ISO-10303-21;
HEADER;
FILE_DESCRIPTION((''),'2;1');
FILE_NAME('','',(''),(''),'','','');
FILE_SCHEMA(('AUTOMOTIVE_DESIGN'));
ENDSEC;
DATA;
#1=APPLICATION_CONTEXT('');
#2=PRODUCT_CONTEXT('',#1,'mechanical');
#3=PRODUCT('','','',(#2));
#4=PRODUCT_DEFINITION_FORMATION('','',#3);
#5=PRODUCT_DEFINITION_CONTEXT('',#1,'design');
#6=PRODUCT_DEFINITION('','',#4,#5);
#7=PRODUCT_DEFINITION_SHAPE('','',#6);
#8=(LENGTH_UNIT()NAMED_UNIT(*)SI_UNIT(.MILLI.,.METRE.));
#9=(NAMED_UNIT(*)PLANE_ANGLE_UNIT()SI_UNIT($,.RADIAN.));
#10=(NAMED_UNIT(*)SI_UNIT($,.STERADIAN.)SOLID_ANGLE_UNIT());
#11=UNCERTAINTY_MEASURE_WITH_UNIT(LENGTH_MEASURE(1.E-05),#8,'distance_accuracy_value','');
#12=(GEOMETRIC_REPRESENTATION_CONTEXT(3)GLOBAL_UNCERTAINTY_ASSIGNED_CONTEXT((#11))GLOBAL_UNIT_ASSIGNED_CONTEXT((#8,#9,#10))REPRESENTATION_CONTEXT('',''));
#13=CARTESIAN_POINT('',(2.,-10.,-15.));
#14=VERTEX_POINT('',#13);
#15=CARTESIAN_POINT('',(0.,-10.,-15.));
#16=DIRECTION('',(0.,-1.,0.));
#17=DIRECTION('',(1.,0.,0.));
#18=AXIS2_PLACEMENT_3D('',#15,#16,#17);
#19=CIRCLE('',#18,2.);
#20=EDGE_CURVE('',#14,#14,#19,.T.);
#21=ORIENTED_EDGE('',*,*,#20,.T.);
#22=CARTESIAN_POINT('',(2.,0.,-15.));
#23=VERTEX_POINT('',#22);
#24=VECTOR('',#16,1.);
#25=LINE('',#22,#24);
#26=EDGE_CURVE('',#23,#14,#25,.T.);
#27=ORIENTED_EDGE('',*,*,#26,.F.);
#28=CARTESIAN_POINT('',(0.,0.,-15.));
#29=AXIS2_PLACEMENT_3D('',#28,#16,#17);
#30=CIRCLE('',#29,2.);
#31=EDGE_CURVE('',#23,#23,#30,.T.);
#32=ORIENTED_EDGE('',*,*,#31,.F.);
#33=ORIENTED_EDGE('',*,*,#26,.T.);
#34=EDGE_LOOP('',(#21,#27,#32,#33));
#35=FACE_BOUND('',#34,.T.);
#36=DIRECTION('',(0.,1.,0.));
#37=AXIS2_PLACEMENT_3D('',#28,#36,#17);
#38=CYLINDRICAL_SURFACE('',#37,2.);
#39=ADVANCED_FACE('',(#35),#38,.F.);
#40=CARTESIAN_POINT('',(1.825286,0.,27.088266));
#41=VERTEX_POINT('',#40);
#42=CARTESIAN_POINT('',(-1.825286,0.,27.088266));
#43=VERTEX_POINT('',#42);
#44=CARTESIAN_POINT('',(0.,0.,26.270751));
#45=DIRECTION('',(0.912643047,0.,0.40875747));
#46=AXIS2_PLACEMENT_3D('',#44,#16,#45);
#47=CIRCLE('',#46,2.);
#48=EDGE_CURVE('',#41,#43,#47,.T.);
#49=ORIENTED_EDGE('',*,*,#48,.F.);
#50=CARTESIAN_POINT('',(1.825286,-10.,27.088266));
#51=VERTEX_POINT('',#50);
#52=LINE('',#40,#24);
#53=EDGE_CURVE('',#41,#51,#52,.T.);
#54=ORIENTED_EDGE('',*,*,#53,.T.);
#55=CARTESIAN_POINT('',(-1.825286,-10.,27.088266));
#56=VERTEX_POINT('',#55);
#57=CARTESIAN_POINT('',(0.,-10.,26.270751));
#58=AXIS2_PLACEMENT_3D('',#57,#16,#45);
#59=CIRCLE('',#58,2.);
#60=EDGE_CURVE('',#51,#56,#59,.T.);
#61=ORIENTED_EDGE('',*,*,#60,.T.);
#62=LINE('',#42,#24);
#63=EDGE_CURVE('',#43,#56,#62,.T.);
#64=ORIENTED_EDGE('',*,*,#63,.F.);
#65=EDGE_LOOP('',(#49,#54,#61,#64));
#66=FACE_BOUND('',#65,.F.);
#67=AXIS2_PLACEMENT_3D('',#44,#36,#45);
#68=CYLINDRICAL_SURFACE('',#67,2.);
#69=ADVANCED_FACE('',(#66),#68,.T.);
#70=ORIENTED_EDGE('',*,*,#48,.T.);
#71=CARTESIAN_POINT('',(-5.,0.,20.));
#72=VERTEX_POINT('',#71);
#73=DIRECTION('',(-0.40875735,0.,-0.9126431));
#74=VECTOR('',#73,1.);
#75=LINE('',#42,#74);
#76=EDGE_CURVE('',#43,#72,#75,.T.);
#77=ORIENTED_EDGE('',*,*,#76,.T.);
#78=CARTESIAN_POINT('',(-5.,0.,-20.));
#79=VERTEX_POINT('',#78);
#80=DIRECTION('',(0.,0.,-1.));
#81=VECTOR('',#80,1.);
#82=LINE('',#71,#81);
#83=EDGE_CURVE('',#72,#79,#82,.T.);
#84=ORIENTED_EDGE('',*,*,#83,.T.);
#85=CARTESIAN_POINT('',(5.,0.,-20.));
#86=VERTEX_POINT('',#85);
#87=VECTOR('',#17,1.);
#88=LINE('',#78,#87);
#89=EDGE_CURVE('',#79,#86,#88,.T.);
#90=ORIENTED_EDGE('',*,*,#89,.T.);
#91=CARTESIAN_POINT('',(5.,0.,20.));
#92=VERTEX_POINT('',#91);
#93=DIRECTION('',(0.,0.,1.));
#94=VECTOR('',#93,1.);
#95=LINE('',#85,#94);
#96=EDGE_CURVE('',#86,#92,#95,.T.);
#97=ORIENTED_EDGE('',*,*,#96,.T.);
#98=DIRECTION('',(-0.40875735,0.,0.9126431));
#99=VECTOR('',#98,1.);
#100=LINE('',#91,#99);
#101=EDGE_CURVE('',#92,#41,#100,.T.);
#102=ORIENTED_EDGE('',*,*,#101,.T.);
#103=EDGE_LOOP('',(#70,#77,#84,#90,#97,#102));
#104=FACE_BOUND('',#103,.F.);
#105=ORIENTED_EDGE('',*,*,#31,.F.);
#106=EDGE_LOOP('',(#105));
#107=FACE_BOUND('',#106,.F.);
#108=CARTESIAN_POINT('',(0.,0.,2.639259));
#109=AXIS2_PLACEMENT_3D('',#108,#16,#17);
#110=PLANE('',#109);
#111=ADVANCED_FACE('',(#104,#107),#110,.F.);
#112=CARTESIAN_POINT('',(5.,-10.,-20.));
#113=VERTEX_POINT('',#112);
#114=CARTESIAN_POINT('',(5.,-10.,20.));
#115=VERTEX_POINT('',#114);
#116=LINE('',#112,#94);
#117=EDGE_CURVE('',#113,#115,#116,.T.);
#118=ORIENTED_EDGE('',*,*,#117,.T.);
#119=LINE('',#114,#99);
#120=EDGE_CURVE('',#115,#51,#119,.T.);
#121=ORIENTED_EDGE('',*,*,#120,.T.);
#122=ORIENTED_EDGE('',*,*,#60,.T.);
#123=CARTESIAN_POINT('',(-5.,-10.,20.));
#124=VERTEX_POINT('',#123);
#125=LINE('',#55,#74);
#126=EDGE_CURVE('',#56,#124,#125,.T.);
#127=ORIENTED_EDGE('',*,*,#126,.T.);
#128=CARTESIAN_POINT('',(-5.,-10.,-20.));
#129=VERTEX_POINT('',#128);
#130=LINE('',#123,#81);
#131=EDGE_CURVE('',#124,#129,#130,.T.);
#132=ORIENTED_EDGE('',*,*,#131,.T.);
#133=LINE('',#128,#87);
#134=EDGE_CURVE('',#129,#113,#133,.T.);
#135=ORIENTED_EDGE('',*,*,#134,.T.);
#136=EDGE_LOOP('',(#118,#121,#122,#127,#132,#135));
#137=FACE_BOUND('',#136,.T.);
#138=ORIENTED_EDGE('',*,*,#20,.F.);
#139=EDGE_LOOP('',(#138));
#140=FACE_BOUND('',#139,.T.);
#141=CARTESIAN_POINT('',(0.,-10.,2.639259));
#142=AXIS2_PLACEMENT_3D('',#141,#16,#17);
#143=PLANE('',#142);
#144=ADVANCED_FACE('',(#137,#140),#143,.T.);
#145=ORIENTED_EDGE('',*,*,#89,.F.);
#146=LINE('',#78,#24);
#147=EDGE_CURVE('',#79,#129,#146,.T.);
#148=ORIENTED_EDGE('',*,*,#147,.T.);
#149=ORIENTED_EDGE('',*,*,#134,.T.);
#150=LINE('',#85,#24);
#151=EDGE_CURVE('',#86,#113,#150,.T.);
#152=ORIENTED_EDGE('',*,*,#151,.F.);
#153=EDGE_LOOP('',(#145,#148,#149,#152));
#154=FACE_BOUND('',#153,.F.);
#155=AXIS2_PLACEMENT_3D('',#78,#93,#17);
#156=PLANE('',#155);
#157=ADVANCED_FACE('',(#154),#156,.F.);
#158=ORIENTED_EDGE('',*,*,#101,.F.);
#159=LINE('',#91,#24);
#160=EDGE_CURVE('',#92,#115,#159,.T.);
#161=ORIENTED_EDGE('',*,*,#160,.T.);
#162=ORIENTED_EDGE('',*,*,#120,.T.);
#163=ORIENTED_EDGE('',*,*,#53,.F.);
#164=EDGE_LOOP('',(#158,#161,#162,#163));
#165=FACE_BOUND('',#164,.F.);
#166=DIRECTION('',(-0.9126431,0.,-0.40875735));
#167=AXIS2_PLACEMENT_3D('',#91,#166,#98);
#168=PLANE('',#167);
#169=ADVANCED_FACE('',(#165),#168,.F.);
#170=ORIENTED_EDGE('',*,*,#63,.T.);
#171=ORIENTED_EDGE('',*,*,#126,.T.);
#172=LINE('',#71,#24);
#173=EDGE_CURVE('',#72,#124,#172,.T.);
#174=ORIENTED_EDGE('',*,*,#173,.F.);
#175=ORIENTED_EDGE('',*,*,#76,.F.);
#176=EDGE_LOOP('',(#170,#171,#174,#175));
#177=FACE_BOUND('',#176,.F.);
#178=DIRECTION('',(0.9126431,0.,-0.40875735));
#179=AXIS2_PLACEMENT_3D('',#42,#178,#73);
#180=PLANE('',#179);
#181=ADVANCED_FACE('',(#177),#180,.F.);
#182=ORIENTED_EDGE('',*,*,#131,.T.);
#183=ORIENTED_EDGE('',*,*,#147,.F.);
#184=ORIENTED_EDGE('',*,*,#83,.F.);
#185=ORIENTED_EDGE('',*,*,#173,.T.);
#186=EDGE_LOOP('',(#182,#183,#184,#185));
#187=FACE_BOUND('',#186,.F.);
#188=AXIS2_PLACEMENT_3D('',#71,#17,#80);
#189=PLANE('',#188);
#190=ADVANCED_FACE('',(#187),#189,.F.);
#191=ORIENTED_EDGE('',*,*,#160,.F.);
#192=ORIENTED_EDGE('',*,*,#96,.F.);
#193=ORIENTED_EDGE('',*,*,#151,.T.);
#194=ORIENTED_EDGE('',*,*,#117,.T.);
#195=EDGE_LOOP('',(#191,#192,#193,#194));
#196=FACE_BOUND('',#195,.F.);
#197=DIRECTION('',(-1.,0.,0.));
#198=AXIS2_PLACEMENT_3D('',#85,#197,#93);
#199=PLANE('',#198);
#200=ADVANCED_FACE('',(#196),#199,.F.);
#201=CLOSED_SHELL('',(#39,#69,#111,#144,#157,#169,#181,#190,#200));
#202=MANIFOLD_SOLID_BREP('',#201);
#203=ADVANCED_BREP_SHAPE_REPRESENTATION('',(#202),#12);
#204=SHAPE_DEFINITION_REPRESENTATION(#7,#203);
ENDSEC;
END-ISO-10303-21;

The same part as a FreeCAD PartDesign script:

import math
import FreeCAD as App
import Part
import Sketcher
from FreeCAD import Vector
Q = App.Units.Quantity

doc = App.newDocument("Part")
body = doc.addObject("PartDesign::Body", "Body")

# Sketch on XZ plane
sketch1 = doc.addObject("Sketcher::SketchObject", "Sketch")
body.addObject(sketch1)
sketch1.AttachmentSupport = (doc.XZ_Plane, [""])
sketch1.MapMode = "FlatFace"
sketch1.addGeometry([
    Part.LineSegment(Vector(-5, -20, 0), Vector(5, -20, 0)),  # 0
    Part.LineSegment(Vector(5, -20, 0), Vector(5, 20, 0)),  # 1
    Part.LineSegment(Vector(5, 20, 0), Vector(1.8, 27.1, 0)),  # 2
    Part.ArcOfCircle(Part.Circle(Vector(0, 26.3, 0), Vector(0, 0, 1), 2), math.radians(24), math.radians(156)),  # 3
    Part.LineSegment(Vector(-1.8, 27.1, 0), Vector(-5, 20, 0)),  # 4
    Part.LineSegment(Vector(-5, 20, 0), Vector(-5, -20, 0)),  # 5
    Part.Circle(Vector(0, -15, 0), Vector(0, 0, 1), 2),  # 6
], False)
sketch1.addConstraint([
    Sketcher.Constraint("Coincident", 0, 2, 1, 1),
    Sketcher.Constraint("Coincident", 1, 2, 2, 1),
    Sketcher.Constraint("Tangent", 2, 2, 3, 1),
    Sketcher.Constraint("Tangent", 3, 2, 4, 1),
    Sketcher.Constraint("Coincident", 4, 2, 5, 1),
    Sketcher.Constraint("Coincident", 5, 2, 0, 1),
    Sketcher.Constraint("Horizontal", 0),
    Sketcher.Constraint("Vertical", 1),
    Sketcher.Constraint("Vertical", 5),
    Sketcher.Constraint("Equal", 3, 6),
    Sketcher.Constraint("Symmetric", 0, 2, 4, 2, -1, 1),
    Sketcher.Constraint("Symmetric", 2, 2, 3, 2, -2),
    Sketcher.Constraint("PointOnObject", 6, 3, -2),
    Sketcher.Constraint("Diameter", 6, Q("4 mm")),
    Sketcher.Constraint("DistanceX", 0, 1, 0, 2, Q("10 mm")),
    Sketcher.Constraint("DistanceY", 1, 1, 1, 2, Q("40 mm")),
    Sketcher.Constraint("DistanceY", 6, 3, -1, 1, Q("15 mm")),
    Sketcher.Constraint("DistanceY", -1, 1, 3, 3, Q("26.270751 mm")),
])
pad1 = doc.addObject("PartDesign::Pad", "Pad")
body.addObject(pad1)
pad1.Profile = sketch1
pad1.Length = 10

doc.recompute()
